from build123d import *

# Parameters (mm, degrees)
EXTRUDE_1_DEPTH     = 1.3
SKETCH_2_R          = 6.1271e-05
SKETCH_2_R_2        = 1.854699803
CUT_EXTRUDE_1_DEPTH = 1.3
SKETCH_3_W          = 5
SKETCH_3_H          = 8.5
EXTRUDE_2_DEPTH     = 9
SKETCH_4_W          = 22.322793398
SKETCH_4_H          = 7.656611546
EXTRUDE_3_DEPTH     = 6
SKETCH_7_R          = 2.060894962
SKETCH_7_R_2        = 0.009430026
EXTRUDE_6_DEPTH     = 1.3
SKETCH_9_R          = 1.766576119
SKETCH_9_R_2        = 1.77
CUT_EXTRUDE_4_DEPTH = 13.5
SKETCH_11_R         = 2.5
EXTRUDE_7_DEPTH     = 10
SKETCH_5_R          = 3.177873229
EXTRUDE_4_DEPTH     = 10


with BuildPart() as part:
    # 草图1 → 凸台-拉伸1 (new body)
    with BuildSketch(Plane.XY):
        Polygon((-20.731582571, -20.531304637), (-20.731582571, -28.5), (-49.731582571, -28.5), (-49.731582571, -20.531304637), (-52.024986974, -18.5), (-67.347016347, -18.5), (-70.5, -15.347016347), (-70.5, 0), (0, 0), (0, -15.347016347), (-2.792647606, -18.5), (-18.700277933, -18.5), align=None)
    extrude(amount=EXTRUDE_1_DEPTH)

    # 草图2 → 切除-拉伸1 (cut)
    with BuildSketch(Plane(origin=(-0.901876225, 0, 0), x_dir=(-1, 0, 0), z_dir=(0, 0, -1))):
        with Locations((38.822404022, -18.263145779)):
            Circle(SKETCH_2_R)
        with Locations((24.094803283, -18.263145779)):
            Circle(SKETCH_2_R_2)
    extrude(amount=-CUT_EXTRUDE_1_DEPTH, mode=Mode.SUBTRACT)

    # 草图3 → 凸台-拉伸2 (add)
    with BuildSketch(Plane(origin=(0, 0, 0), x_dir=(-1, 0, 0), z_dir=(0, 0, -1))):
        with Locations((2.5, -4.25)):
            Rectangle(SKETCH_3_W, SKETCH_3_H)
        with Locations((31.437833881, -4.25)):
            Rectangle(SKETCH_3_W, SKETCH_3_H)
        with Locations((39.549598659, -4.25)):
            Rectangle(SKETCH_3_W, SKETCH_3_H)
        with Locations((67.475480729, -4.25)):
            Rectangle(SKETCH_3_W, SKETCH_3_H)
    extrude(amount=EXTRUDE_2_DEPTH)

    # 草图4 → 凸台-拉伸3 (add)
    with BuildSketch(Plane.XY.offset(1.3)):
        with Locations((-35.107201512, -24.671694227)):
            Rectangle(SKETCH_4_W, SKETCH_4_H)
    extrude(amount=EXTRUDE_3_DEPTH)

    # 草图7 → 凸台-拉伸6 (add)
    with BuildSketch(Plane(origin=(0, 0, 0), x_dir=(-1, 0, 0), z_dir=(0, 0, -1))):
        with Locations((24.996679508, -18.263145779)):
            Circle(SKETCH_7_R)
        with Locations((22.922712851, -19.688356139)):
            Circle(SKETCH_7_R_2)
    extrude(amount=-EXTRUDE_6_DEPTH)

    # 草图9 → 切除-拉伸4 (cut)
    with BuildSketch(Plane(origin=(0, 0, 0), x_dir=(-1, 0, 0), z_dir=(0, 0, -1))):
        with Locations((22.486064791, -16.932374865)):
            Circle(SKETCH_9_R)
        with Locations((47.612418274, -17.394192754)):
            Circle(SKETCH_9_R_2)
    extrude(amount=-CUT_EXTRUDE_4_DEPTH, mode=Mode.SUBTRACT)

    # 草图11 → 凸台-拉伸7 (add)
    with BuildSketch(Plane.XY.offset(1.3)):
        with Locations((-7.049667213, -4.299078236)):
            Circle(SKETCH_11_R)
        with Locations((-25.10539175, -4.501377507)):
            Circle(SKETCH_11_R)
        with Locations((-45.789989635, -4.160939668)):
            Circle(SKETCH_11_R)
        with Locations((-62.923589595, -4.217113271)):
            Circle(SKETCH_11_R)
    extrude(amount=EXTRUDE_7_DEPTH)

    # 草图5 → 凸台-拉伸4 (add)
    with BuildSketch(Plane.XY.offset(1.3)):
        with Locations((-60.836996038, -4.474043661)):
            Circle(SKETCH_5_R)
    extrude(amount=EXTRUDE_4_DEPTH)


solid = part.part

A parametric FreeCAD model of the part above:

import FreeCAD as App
import Part
import Sketcher
from FreeCAD import Vector
Q = App.Units.Quantity

doc = App.newDocument("Part")
body = doc.addObject("PartDesign::Body", "Body")

# Sketch on XY plane
sketch1 = body.newObject("Sketcher::SketchObject", "Sketch")
sketch1.AttachmentSupport = (doc.getObject("XY_Plane"), [""])
sketch1.MapMode = "FlatFace"
sketch1.addGeometry([
    Part.LineSegment(Vector(-20.7, -28.5, 0), Vector(-20.7, -20.5, 0)),  # 0
    Part.LineSegment(Vector(-20.7, -20.5, 0), Vector(-18.7, -18.5, 0)),  # 1
    Part.LineSegment(Vector(-18.7, -18.5, 0), Vector(-2.8, -18.5, 0)),  # 2
    Part.LineSegment(Vector(-2.8, -18.5, 0), Vector(0, -15.3, 0)),  # 3
    Part.LineSegment(Vector(0, -15.3, 0), Vector(0, 0, 0)),  # 4
    Part.LineSegment(Vector(0, 0, 0), Vector(-70.5, 0, 0)),  # 5
    Part.LineSegment(Vector(-70.5, 0, 0), Vector(-70.5, -15.3, 0)),  # 6
    Part.LineSegment(Vector(-70.5, -15.3, 0), Vector(-67.3, -18.5, 0)),  # 7
    Part.LineSegment(Vector(-67.3, -18.5, 0), Vector(-52, -18.5, 0)),  # 8
    Part.LineSegment(Vector(-52, -18.5, 0), Vector(-49.7, -20.5, 0)),  # 9
    Part.LineSegment(Vector(-49.7, -20.5, 0), Vector(-49.7, -28.5, 0)),  # 10
    Part.LineSegment(Vector(-49.7, -28.5, 0), Vector(-20.7, -28.5, 0)),  # 11
], False)
sketch1.addConstraint([
    Sketcher.Constraint("Coincident", 0, 2, 1, 1),
    Sketcher.Constraint("Coincident", 1, 2, 2, 1),
    Sketcher.Constraint("Coincident", 2, 2, 3, 1),
    Sketcher.Constraint("Coincident", 3, 2, 4, 1),
    Sketcher.Constraint("Coincident", 4, 2, 5, 1),
    Sketcher.Constraint("Coincident", 5, 2, 6, 1),
    Sketcher.Constraint("Coincident", 6, 2, 7, 1),
    Sketcher.Constraint("Coincident", 7, 2, 8, 1),
    Sketcher.Constraint("Coincident", 8, 2, 9, 1),
    Sketcher.Constraint("Coincident", 9, 2, 10, 1),
    Sketcher.Constraint("Coincident", 10, 2, 11, 1),
    Sketcher.Constraint("Coincident", 11, 2, 0, 1),
    Sketcher.Constraint("Vertical", 0),
    Sketcher.Constraint("Horizontal", 2),
    Sketcher.Constraint("Vertical", 4),
    Sketcher.Constraint("Horizontal", 5),
    Sketcher.Constraint("Vertical", 6),
    Sketcher.Constraint("Horizontal", 8),
    Sketcher.Constraint("Vertical", 10),
    Sketcher.Constraint("Horizontal", 11),
    Sketcher.Constraint("Coincident", 4, 2, -1, 1),
    Sketcher.Constraint("Perpendicular", 1, 7),
    Sketcher.Constraint("Perpendicular", 3, 9),
    Sketcher.Constraint("Horizontal", 3, 2, 6, 2),
    Sketcher.Constraint("Horizontal", 2, 2, 7, 2),
    Sketcher.Constraint("Horizontal", 0, 2, 9, 2),
    Sketcher.Constraint("DistanceX", 11, 1, 11, 2, Q("29 mm")),
    Sketcher.Constraint("Angle", 1, Q("45 deg")),
    Sketcher.Constraint("DistanceX", 5, 2, 5, 1, Q("70.5 mm")),
    Sketcher.Constraint("DistanceY", 10, 2, 8, 2, Q("10 mm")),
    Sketcher.Constraint("DistanceY", 1, 2, -1, 1, Q("18.5 mm")),
    Sketcher.Constraint("Distance", 1, Q("2.872699 mm")),
    Sketcher.Constraint("DistanceX", 2, 1, 2, 2, Q("15.90763 mm")),
    Sketcher.Constraint("DistanceX", 8, 1, 8, 2, Q("15.322029 mm")),
    Sketcher.Constraint("Distance", 3, Q("4.21191 mm")),
])
pad1 = body.newObject("PartDesign::Pad", "Pad")
pad1.Profile = sketch1
pad1.Length = 1.3

# Sketch on XY plane
sketch2 = body.newObject("Sketcher::SketchObject", "Sketch001")
sketch2.AttachmentSupport = (doc.getObject("XY_Plane"), [""])
sketch2.MapMode = "FlatFace"
sketch2.addGeometry([
    Part.Circle(Vector(-39.72428, -18.26315, 0), Vector(0, 0, 1), 0.00006),
    Part.Circle(Vector(-24.99668, -18.26315, 0), Vector(0, 0, 1), 1.8547),
], False)
sketch2.addConstraint([
    Sketcher.Constraint("Horizontal", 0, 3, 1, 3),
    Sketcher.Constraint("Diameter", 1, Q("3.7094 mm")),
    Sketcher.Constraint("Diameter", 0, Q("0.000123 mm")),
    Sketcher.Constraint("DistanceX", 0, 3, 1, 3, Q("14.727601 mm")),
    Sketcher.Constraint("DistanceX", 0, 3, -1, 1, Q("39.72428 mm")),
    Sketcher.Constraint("DistanceY", 0, 3, -1, 1, Q("18.263146 mm")),
])
pocket1 = body.newObject("PartDesign::Pocket", "Pocket")
pocket1.Profile = sketch2
pocket1.Length = 1.3
pocket1.Reversed = True

# Sketch on XY plane
sketch3 = body.newObject("Sketcher::SketchObject", "Sketch002")
sketch3.AttachmentSupport = (doc.getObject("XY_Plane"), [""])
sketch3.MapMode = "FlatFace"
sketch3.addGeometry([
    Part.LineSegment(Vector(0, 0, 0), Vector(0, -8, 0)),  # 0
    Part.LineSegment(Vector(0, -8, 0), Vector(-5, -8, 0)),  # 1
    Part.LineSegment(Vector(-5, -8, 0), Vector(-5, 0, 0)),  # 2
    Part.LineSegment(Vector(-5, 0, 0), Vector(0, 0, 0)),  # 3
    Part.LineSegment(Vector(-29, 0, 0), Vector(-29, -8, 0)),  # 4
    Part.LineSegment(Vector(-29, -8, 0), Vector(-34, -8, 0)),  # 5
    Part.LineSegment(Vector(-34, -8, 0), Vector(-34, 0, 0)),  # 6
    Part.LineSegment(Vector(-34, 0, 0), Vector(-29, 0, 0)),  # 7
    Part.LineSegment(Vector(-37, 0, 0), Vector(-37, -8, 0)),  # 8
    Part.LineSegment(Vector(-37, -8, 0), Vector(-42, -8, 0)),  # 9
    Part.LineSegment(Vector(-42, -8, 0), Vector(-42, 0, 0)),  # 10
    Part.LineSegment(Vector(-42, 0, 0), Vector(-37, 0, 0)),  # 11
    Part.LineSegment(Vector(-65, 0, 0), Vector(-65, -8, 0)),  # 12
    Part.LineSegment(Vector(-65, -8, 0), Vector(-70, -8, 0)),  # 13
    Part.LineSegment(Vector(-70, -8, 0), Vector(-70, 0, 0)),  # 14
    Part.LineSegment(Vector(-70, 0, 0), Vector(-65, 0, 0)),  # 15
], False)
sketch3.addConstraint([
    Sketcher.Constraint("Coincident", 0, 2, 1, 1),
    Sketcher.Constraint("Coincident", 1, 2, 2, 1),
    Sketcher.Constraint("Coincident", 2, 2, 3, 1),
    Sketcher.Constraint("Coincident", 3, 2, 0, 1),
    Sketcher.Constraint("Coincident", 4, 2, 5, 1),
    Sketcher.Constraint("Coincident", 5, 2, 6, 1),
    Sketcher.Constraint("Coincident", 6, 2, 7, 1),
    Sketcher.Constraint("Coincident", 7, 2, 4, 1),
    Sketcher.Constraint("Coincident", 8, 2, 9, 1),
    Sketcher.Constraint("Coincident", 9, 2, 10, 1),
    Sketcher.Constraint("Coincident", 10, 2, 11, 1),
    Sketcher.Constraint("Coincident", 11, 2, 8, 1),
    Sketcher.Constraint("Coincident", 12, 2, 13, 1),
    Sketcher.Constraint("Coincident", 13, 2, 14, 1),
    Sketcher.Constraint("Coincident", 14, 2, 15, 1),
    Sketcher.Constraint("Coincident", 15, 2, 12, 1),
    Sketcher.Constraint("Vertical", 0),
    Sketcher.Constraint("Horizontal", 1),
    Sketcher.Constraint("Vertical", 2),
    Sketcher.Constraint("Horizontal", 3),
    Sketcher.Constraint("Vertical", 4),
    Sketcher.Constraint("Horizontal", 5),
    Sketcher.Constraint("Vertical", 6),
    Sketcher.Constraint("Horizontal", 7),
    Sketcher.Constraint("Vertical", 8),
    Sketcher.Constraint("Horizontal", 9),
    Sketcher.Constraint("Vertical", 10),
    Sketcher.Constraint("Horizontal", 11),
    Sketcher.Constraint("Vertical", 12),
    Sketcher.Constraint("Horizontal", 13),
    Sketcher.Constraint("Vertical", 14),
    Sketcher.Constraint("Horizontal", 15),
    Sketcher.Constraint("Coincident", 3, 2, -1, 1),
    Sketcher.Constraint("PointOnObject", 6, 2, -1),
    Sketcher.Constraint("PointOnObject", 10, 2, -1),
    Sketcher.Constraint("PointOnObject", 14, 2, -1),
    Sketcher.Constraint("Horizontal", 1, 2, 4, 2),
    Sketcher.Constraint("Horizontal", 5, 2, 8, 2),
    Sketcher.Constraint("Horizontal", 9, 2, 12, 2),
    Sketcher.Constraint("Equal", 3, 5),
    Sketcher.Constraint("Equal", 7, 9),
    Sketcher.Constraint("Equal", 11, 13),
    Sketcher.Constraint("DistanceX", 1, 2, 1, 1, Q("5 mm")),
    Sketcher.Constraint("DistanceY", 0, 2, 0, 1, Q("8.5 mm")),
    Sketcher.Constraint("DistanceX", 8, 2, -1, 1, Q("37.049599 mm")),
    Sketcher.Constraint("DistanceX", 12, 2, -1, 1, Q("64.975481 mm")),
    Sketcher.Constraint("DistanceX", 4, 2, -1, 1, Q("28.937834 mm")),
])
pad2 = body.newObject("PartDesign::Pad", "Pad001")
pad2.Profile = sketch3
pad2.Length = 9
pad2.Reversed = True

# Sketch on XY plane
sketch4 = body.newObject("Sketcher::SketchObject", "Sketch003")
sketch4.AttachmentSupport = (doc.getObject("XY_Plane"), [""])
sketch4.MapMode = "FlatFace"
sketch4.AttachmentOffset = App.Placement(Vector(0, 0, 1.3), App.Rotation())
sketch4.addGeometry([
    Part.LineSegment(Vector(-46, -21, 0), Vector(-46, -28, 0)),
    Part.LineSegment(Vector(-46, -28, 0), Vector(-24, -28, 0)),
    Part.LineSegment(Vector(-24, -28, 0), Vector(-24, -21, 0)),
    Part.LineSegment(Vector(-24, -21, 0), Vector(-46, -21, 0)),
], False)
sketch4.addConstraint([
    Sketcher.Constraint("Coincident", 0, 2, 1, 1),
    Sketcher.Constraint("Coincident", 1, 2, 2, 1),
    Sketcher.Constraint("Coincident", 2, 2, 3, 1),
    Sketcher.Constraint("Coincident", 3, 2, 0, 1),
    Sketcher.Constraint("Vertical", 0),
    Sketcher.Constraint("Horizontal", 1),
    Sketcher.Constraint("Vertical", 2),
    Sketcher.Constraint("Horizontal", 3),
    Sketcher.Constraint("DistanceY", 0, 2, -1, 1, Q("28.5 mm")),
    Sketcher.Constraint("DistanceY", 0, 2, 0, 1, Q("7.656612 mm")),
    Sketcher.Constraint("DistanceX", 0, 2, -1, 1, Q("46.268598 mm")),
    Sketcher.Constraint("DistanceX", 1, 1, 1, 2, Q("22.322793 mm")),
])
pad3 = body.newObject("PartDesign::Pad", "Pad002")
pad3.Profile = sketch4
pad3.Length = 6

# Sketch on XY plane
sketch5 = body.newObject("Sketcher::SketchObject", "Sketch004")
sketch5.AttachmentSupport = (doc.getObject("XY_Plane"), [""])
sketch5.MapMode = "FlatFace"
sketch5.addGeometry([
    Part.Circle(Vector(-24.997, -18.263, 0), Vector(0, 0, 1), 2.061),
    Part.Circle(Vector(-22.923, -19.688, 0), Vector(0, 0, 1), 0.009),
], False)
sketch5.addConstraint([
    Sketcher.Constraint("Diameter", 0, Q("4.12179 mm")),
    Sketcher.Constraint("Diameter", 1, Q("0.01886 mm")),
    Sketcher.Constraint("DistanceX", 0, 3, -1, 1, Q("24.99668 mm")),
    Sketcher.Constraint("DistanceY", 1, 3, 0, 3, Q("1.42521 mm")),
    Sketcher.Constraint("DistanceY", 0, 3, -1, 1, Q("18.263146 mm")),
    Sketcher.Constraint("DistanceX", 1, 3, -1, 1, Q("22.922713 mm")),
])
pad4 = body.newObject("PartDesign::Pad", "Pad003")
pad4.Profile = sketch5
pad4.Length = 1.3

# Sketch on XY plane
sketch6 = body.newObject("Sketcher::SketchObject", "Sketch005")
sketch6.AttachmentSupport = (doc.getObject("XY_Plane"), [""])
sketch6.MapMode = "FlatFace"
sketch6.addGeometry([
    Part.Circle(Vector(-22.5, -16.9, 0), Vector(0, 0, 1), 1.8),
    Part.Circle(Vector(-47.6, -17.4, 0), Vector(0, 0, 1), 1.8),
], False)
sketch6.addConstraint([
    Sketcher.Constraint("Diameter", 1, Q("3.54 mm")),
    Sketcher.Constraint("Diameter", 0, Q("3.533152 mm")),
    Sketcher.Constraint("DistanceX", 1, 3, -1, 1, Q("47.612418 mm")),
    Sketcher.Constraint("DistanceX", 0, 3, -1, 1, Q("22.486065 mm")),
    Sketcher.Constraint("DistanceY", 0, 3, -1, 1, Q("16.932375 mm")),
    Sketcher.Constraint("DistanceY", 1, 3, -1, 1, Q("17.394193 mm")),
])
pocket2 = body.newObject("PartDesign::Pocket", "Pocket001")
pocket2.Profile = sketch6
pocket2.Length = 13.5
pocket2.Reversed = True

# Sketch on XY plane
sketch7 = body.newObject("Sketcher::SketchObject", "Sketch006")
sketch7.AttachmentSupport = (doc.getObject("XY_Plane"), [""])
sketch7.MapMode = "FlatFace"
sketch7.AttachmentOffset = App.Placement(Vector(0, 0, 1.3), App.Rotation())
sketch7.addGeometry([
    Part.Circle(Vector(-7, -4.3, 0), Vector(0, 0, 1), 2.5),
    Part.Circle(Vector(-25.1, -4.5, 0), Vector(0, 0, 1), 2.5),
    Part.Circle(Vector(-45.8, -4.2, 0), Vector(0, 0, 1), 2.5),
    Part.Circle(Vector(-62.9, -4.2, 0), Vector(0, 0, 1), 2.5),
], False)
sketch7.addConstraint([
    Sketcher.Constraint("Equal", 0, 1),
    Sketcher.Constraint("Equal", 1, 2),
    Sketcher.Constraint("Equal", 2, 3),
    Sketcher.Constraint("Diameter", 0, Q("5 mm")),
    Sketcher.Constraint("DistanceY", 1, 3, 0, 3, Q("0.202299 mm")),
    Sketcher.Constraint("DistanceX", 3, 3, 2, 3, Q("17.1336 mm")),
    Sketcher.Constraint("DistanceY", 0, 3, -1, 1, Q("4.299078 mm")),
    Sketcher.Constraint("DistanceX", 1, 3, -1, 1, Q("25.105392 mm")),
    Sketcher.Constraint("DistanceX", 2, 3, -1, 1, Q("45.78999 mm")),
    Sketcher.Constraint("DistanceY", 2, 3, -1, 1, Q("4.16094 mm")),
    Sketcher.Constraint("DistanceX", 0, 3, -1, 1, Q("7.049667 mm")),
    Sketcher.Constraint("DistanceY", 3, 3, -1, 1, Q("4.217113 mm")),
])
pad5 = body.newObject("PartDesign::Pad", "Pad004")
pad5.Profile = sketch7
pad5.Length = 10

# Sketch on XY plane
sketch8 = body.newObject("Sketcher::SketchObject", "Sketch007")
sketch8.AttachmentSupport = (doc.getObject("XY_Plane"), [""])
sketch8.MapMode = "FlatFace"
sketch8.AttachmentOffset = App.Placement(Vector(0, 0, 1.3), App.Rotation())
sketch8.addGeometry(Part.Circle(Vector(-60.8, -4.5, 0), Vector(0, 0, 1), 3.2), False)
sketch8.addConstraint([
    Sketcher.Constraint("Diameter", 0, Q("6.355746 mm")),
    Sketcher.Constraint("DistanceX", 0, 3, -1, 1, Q("60.836996 mm")),
    Sketcher.Constraint("DistanceY", 0, 3, -1, 1, Q("4.474044 mm")),
])
pad6 = body.newObject("PartDesign::Pad", "Pad005")
pad6.Profile = sketch8
pad6.Length = 10

doc.recompute()
